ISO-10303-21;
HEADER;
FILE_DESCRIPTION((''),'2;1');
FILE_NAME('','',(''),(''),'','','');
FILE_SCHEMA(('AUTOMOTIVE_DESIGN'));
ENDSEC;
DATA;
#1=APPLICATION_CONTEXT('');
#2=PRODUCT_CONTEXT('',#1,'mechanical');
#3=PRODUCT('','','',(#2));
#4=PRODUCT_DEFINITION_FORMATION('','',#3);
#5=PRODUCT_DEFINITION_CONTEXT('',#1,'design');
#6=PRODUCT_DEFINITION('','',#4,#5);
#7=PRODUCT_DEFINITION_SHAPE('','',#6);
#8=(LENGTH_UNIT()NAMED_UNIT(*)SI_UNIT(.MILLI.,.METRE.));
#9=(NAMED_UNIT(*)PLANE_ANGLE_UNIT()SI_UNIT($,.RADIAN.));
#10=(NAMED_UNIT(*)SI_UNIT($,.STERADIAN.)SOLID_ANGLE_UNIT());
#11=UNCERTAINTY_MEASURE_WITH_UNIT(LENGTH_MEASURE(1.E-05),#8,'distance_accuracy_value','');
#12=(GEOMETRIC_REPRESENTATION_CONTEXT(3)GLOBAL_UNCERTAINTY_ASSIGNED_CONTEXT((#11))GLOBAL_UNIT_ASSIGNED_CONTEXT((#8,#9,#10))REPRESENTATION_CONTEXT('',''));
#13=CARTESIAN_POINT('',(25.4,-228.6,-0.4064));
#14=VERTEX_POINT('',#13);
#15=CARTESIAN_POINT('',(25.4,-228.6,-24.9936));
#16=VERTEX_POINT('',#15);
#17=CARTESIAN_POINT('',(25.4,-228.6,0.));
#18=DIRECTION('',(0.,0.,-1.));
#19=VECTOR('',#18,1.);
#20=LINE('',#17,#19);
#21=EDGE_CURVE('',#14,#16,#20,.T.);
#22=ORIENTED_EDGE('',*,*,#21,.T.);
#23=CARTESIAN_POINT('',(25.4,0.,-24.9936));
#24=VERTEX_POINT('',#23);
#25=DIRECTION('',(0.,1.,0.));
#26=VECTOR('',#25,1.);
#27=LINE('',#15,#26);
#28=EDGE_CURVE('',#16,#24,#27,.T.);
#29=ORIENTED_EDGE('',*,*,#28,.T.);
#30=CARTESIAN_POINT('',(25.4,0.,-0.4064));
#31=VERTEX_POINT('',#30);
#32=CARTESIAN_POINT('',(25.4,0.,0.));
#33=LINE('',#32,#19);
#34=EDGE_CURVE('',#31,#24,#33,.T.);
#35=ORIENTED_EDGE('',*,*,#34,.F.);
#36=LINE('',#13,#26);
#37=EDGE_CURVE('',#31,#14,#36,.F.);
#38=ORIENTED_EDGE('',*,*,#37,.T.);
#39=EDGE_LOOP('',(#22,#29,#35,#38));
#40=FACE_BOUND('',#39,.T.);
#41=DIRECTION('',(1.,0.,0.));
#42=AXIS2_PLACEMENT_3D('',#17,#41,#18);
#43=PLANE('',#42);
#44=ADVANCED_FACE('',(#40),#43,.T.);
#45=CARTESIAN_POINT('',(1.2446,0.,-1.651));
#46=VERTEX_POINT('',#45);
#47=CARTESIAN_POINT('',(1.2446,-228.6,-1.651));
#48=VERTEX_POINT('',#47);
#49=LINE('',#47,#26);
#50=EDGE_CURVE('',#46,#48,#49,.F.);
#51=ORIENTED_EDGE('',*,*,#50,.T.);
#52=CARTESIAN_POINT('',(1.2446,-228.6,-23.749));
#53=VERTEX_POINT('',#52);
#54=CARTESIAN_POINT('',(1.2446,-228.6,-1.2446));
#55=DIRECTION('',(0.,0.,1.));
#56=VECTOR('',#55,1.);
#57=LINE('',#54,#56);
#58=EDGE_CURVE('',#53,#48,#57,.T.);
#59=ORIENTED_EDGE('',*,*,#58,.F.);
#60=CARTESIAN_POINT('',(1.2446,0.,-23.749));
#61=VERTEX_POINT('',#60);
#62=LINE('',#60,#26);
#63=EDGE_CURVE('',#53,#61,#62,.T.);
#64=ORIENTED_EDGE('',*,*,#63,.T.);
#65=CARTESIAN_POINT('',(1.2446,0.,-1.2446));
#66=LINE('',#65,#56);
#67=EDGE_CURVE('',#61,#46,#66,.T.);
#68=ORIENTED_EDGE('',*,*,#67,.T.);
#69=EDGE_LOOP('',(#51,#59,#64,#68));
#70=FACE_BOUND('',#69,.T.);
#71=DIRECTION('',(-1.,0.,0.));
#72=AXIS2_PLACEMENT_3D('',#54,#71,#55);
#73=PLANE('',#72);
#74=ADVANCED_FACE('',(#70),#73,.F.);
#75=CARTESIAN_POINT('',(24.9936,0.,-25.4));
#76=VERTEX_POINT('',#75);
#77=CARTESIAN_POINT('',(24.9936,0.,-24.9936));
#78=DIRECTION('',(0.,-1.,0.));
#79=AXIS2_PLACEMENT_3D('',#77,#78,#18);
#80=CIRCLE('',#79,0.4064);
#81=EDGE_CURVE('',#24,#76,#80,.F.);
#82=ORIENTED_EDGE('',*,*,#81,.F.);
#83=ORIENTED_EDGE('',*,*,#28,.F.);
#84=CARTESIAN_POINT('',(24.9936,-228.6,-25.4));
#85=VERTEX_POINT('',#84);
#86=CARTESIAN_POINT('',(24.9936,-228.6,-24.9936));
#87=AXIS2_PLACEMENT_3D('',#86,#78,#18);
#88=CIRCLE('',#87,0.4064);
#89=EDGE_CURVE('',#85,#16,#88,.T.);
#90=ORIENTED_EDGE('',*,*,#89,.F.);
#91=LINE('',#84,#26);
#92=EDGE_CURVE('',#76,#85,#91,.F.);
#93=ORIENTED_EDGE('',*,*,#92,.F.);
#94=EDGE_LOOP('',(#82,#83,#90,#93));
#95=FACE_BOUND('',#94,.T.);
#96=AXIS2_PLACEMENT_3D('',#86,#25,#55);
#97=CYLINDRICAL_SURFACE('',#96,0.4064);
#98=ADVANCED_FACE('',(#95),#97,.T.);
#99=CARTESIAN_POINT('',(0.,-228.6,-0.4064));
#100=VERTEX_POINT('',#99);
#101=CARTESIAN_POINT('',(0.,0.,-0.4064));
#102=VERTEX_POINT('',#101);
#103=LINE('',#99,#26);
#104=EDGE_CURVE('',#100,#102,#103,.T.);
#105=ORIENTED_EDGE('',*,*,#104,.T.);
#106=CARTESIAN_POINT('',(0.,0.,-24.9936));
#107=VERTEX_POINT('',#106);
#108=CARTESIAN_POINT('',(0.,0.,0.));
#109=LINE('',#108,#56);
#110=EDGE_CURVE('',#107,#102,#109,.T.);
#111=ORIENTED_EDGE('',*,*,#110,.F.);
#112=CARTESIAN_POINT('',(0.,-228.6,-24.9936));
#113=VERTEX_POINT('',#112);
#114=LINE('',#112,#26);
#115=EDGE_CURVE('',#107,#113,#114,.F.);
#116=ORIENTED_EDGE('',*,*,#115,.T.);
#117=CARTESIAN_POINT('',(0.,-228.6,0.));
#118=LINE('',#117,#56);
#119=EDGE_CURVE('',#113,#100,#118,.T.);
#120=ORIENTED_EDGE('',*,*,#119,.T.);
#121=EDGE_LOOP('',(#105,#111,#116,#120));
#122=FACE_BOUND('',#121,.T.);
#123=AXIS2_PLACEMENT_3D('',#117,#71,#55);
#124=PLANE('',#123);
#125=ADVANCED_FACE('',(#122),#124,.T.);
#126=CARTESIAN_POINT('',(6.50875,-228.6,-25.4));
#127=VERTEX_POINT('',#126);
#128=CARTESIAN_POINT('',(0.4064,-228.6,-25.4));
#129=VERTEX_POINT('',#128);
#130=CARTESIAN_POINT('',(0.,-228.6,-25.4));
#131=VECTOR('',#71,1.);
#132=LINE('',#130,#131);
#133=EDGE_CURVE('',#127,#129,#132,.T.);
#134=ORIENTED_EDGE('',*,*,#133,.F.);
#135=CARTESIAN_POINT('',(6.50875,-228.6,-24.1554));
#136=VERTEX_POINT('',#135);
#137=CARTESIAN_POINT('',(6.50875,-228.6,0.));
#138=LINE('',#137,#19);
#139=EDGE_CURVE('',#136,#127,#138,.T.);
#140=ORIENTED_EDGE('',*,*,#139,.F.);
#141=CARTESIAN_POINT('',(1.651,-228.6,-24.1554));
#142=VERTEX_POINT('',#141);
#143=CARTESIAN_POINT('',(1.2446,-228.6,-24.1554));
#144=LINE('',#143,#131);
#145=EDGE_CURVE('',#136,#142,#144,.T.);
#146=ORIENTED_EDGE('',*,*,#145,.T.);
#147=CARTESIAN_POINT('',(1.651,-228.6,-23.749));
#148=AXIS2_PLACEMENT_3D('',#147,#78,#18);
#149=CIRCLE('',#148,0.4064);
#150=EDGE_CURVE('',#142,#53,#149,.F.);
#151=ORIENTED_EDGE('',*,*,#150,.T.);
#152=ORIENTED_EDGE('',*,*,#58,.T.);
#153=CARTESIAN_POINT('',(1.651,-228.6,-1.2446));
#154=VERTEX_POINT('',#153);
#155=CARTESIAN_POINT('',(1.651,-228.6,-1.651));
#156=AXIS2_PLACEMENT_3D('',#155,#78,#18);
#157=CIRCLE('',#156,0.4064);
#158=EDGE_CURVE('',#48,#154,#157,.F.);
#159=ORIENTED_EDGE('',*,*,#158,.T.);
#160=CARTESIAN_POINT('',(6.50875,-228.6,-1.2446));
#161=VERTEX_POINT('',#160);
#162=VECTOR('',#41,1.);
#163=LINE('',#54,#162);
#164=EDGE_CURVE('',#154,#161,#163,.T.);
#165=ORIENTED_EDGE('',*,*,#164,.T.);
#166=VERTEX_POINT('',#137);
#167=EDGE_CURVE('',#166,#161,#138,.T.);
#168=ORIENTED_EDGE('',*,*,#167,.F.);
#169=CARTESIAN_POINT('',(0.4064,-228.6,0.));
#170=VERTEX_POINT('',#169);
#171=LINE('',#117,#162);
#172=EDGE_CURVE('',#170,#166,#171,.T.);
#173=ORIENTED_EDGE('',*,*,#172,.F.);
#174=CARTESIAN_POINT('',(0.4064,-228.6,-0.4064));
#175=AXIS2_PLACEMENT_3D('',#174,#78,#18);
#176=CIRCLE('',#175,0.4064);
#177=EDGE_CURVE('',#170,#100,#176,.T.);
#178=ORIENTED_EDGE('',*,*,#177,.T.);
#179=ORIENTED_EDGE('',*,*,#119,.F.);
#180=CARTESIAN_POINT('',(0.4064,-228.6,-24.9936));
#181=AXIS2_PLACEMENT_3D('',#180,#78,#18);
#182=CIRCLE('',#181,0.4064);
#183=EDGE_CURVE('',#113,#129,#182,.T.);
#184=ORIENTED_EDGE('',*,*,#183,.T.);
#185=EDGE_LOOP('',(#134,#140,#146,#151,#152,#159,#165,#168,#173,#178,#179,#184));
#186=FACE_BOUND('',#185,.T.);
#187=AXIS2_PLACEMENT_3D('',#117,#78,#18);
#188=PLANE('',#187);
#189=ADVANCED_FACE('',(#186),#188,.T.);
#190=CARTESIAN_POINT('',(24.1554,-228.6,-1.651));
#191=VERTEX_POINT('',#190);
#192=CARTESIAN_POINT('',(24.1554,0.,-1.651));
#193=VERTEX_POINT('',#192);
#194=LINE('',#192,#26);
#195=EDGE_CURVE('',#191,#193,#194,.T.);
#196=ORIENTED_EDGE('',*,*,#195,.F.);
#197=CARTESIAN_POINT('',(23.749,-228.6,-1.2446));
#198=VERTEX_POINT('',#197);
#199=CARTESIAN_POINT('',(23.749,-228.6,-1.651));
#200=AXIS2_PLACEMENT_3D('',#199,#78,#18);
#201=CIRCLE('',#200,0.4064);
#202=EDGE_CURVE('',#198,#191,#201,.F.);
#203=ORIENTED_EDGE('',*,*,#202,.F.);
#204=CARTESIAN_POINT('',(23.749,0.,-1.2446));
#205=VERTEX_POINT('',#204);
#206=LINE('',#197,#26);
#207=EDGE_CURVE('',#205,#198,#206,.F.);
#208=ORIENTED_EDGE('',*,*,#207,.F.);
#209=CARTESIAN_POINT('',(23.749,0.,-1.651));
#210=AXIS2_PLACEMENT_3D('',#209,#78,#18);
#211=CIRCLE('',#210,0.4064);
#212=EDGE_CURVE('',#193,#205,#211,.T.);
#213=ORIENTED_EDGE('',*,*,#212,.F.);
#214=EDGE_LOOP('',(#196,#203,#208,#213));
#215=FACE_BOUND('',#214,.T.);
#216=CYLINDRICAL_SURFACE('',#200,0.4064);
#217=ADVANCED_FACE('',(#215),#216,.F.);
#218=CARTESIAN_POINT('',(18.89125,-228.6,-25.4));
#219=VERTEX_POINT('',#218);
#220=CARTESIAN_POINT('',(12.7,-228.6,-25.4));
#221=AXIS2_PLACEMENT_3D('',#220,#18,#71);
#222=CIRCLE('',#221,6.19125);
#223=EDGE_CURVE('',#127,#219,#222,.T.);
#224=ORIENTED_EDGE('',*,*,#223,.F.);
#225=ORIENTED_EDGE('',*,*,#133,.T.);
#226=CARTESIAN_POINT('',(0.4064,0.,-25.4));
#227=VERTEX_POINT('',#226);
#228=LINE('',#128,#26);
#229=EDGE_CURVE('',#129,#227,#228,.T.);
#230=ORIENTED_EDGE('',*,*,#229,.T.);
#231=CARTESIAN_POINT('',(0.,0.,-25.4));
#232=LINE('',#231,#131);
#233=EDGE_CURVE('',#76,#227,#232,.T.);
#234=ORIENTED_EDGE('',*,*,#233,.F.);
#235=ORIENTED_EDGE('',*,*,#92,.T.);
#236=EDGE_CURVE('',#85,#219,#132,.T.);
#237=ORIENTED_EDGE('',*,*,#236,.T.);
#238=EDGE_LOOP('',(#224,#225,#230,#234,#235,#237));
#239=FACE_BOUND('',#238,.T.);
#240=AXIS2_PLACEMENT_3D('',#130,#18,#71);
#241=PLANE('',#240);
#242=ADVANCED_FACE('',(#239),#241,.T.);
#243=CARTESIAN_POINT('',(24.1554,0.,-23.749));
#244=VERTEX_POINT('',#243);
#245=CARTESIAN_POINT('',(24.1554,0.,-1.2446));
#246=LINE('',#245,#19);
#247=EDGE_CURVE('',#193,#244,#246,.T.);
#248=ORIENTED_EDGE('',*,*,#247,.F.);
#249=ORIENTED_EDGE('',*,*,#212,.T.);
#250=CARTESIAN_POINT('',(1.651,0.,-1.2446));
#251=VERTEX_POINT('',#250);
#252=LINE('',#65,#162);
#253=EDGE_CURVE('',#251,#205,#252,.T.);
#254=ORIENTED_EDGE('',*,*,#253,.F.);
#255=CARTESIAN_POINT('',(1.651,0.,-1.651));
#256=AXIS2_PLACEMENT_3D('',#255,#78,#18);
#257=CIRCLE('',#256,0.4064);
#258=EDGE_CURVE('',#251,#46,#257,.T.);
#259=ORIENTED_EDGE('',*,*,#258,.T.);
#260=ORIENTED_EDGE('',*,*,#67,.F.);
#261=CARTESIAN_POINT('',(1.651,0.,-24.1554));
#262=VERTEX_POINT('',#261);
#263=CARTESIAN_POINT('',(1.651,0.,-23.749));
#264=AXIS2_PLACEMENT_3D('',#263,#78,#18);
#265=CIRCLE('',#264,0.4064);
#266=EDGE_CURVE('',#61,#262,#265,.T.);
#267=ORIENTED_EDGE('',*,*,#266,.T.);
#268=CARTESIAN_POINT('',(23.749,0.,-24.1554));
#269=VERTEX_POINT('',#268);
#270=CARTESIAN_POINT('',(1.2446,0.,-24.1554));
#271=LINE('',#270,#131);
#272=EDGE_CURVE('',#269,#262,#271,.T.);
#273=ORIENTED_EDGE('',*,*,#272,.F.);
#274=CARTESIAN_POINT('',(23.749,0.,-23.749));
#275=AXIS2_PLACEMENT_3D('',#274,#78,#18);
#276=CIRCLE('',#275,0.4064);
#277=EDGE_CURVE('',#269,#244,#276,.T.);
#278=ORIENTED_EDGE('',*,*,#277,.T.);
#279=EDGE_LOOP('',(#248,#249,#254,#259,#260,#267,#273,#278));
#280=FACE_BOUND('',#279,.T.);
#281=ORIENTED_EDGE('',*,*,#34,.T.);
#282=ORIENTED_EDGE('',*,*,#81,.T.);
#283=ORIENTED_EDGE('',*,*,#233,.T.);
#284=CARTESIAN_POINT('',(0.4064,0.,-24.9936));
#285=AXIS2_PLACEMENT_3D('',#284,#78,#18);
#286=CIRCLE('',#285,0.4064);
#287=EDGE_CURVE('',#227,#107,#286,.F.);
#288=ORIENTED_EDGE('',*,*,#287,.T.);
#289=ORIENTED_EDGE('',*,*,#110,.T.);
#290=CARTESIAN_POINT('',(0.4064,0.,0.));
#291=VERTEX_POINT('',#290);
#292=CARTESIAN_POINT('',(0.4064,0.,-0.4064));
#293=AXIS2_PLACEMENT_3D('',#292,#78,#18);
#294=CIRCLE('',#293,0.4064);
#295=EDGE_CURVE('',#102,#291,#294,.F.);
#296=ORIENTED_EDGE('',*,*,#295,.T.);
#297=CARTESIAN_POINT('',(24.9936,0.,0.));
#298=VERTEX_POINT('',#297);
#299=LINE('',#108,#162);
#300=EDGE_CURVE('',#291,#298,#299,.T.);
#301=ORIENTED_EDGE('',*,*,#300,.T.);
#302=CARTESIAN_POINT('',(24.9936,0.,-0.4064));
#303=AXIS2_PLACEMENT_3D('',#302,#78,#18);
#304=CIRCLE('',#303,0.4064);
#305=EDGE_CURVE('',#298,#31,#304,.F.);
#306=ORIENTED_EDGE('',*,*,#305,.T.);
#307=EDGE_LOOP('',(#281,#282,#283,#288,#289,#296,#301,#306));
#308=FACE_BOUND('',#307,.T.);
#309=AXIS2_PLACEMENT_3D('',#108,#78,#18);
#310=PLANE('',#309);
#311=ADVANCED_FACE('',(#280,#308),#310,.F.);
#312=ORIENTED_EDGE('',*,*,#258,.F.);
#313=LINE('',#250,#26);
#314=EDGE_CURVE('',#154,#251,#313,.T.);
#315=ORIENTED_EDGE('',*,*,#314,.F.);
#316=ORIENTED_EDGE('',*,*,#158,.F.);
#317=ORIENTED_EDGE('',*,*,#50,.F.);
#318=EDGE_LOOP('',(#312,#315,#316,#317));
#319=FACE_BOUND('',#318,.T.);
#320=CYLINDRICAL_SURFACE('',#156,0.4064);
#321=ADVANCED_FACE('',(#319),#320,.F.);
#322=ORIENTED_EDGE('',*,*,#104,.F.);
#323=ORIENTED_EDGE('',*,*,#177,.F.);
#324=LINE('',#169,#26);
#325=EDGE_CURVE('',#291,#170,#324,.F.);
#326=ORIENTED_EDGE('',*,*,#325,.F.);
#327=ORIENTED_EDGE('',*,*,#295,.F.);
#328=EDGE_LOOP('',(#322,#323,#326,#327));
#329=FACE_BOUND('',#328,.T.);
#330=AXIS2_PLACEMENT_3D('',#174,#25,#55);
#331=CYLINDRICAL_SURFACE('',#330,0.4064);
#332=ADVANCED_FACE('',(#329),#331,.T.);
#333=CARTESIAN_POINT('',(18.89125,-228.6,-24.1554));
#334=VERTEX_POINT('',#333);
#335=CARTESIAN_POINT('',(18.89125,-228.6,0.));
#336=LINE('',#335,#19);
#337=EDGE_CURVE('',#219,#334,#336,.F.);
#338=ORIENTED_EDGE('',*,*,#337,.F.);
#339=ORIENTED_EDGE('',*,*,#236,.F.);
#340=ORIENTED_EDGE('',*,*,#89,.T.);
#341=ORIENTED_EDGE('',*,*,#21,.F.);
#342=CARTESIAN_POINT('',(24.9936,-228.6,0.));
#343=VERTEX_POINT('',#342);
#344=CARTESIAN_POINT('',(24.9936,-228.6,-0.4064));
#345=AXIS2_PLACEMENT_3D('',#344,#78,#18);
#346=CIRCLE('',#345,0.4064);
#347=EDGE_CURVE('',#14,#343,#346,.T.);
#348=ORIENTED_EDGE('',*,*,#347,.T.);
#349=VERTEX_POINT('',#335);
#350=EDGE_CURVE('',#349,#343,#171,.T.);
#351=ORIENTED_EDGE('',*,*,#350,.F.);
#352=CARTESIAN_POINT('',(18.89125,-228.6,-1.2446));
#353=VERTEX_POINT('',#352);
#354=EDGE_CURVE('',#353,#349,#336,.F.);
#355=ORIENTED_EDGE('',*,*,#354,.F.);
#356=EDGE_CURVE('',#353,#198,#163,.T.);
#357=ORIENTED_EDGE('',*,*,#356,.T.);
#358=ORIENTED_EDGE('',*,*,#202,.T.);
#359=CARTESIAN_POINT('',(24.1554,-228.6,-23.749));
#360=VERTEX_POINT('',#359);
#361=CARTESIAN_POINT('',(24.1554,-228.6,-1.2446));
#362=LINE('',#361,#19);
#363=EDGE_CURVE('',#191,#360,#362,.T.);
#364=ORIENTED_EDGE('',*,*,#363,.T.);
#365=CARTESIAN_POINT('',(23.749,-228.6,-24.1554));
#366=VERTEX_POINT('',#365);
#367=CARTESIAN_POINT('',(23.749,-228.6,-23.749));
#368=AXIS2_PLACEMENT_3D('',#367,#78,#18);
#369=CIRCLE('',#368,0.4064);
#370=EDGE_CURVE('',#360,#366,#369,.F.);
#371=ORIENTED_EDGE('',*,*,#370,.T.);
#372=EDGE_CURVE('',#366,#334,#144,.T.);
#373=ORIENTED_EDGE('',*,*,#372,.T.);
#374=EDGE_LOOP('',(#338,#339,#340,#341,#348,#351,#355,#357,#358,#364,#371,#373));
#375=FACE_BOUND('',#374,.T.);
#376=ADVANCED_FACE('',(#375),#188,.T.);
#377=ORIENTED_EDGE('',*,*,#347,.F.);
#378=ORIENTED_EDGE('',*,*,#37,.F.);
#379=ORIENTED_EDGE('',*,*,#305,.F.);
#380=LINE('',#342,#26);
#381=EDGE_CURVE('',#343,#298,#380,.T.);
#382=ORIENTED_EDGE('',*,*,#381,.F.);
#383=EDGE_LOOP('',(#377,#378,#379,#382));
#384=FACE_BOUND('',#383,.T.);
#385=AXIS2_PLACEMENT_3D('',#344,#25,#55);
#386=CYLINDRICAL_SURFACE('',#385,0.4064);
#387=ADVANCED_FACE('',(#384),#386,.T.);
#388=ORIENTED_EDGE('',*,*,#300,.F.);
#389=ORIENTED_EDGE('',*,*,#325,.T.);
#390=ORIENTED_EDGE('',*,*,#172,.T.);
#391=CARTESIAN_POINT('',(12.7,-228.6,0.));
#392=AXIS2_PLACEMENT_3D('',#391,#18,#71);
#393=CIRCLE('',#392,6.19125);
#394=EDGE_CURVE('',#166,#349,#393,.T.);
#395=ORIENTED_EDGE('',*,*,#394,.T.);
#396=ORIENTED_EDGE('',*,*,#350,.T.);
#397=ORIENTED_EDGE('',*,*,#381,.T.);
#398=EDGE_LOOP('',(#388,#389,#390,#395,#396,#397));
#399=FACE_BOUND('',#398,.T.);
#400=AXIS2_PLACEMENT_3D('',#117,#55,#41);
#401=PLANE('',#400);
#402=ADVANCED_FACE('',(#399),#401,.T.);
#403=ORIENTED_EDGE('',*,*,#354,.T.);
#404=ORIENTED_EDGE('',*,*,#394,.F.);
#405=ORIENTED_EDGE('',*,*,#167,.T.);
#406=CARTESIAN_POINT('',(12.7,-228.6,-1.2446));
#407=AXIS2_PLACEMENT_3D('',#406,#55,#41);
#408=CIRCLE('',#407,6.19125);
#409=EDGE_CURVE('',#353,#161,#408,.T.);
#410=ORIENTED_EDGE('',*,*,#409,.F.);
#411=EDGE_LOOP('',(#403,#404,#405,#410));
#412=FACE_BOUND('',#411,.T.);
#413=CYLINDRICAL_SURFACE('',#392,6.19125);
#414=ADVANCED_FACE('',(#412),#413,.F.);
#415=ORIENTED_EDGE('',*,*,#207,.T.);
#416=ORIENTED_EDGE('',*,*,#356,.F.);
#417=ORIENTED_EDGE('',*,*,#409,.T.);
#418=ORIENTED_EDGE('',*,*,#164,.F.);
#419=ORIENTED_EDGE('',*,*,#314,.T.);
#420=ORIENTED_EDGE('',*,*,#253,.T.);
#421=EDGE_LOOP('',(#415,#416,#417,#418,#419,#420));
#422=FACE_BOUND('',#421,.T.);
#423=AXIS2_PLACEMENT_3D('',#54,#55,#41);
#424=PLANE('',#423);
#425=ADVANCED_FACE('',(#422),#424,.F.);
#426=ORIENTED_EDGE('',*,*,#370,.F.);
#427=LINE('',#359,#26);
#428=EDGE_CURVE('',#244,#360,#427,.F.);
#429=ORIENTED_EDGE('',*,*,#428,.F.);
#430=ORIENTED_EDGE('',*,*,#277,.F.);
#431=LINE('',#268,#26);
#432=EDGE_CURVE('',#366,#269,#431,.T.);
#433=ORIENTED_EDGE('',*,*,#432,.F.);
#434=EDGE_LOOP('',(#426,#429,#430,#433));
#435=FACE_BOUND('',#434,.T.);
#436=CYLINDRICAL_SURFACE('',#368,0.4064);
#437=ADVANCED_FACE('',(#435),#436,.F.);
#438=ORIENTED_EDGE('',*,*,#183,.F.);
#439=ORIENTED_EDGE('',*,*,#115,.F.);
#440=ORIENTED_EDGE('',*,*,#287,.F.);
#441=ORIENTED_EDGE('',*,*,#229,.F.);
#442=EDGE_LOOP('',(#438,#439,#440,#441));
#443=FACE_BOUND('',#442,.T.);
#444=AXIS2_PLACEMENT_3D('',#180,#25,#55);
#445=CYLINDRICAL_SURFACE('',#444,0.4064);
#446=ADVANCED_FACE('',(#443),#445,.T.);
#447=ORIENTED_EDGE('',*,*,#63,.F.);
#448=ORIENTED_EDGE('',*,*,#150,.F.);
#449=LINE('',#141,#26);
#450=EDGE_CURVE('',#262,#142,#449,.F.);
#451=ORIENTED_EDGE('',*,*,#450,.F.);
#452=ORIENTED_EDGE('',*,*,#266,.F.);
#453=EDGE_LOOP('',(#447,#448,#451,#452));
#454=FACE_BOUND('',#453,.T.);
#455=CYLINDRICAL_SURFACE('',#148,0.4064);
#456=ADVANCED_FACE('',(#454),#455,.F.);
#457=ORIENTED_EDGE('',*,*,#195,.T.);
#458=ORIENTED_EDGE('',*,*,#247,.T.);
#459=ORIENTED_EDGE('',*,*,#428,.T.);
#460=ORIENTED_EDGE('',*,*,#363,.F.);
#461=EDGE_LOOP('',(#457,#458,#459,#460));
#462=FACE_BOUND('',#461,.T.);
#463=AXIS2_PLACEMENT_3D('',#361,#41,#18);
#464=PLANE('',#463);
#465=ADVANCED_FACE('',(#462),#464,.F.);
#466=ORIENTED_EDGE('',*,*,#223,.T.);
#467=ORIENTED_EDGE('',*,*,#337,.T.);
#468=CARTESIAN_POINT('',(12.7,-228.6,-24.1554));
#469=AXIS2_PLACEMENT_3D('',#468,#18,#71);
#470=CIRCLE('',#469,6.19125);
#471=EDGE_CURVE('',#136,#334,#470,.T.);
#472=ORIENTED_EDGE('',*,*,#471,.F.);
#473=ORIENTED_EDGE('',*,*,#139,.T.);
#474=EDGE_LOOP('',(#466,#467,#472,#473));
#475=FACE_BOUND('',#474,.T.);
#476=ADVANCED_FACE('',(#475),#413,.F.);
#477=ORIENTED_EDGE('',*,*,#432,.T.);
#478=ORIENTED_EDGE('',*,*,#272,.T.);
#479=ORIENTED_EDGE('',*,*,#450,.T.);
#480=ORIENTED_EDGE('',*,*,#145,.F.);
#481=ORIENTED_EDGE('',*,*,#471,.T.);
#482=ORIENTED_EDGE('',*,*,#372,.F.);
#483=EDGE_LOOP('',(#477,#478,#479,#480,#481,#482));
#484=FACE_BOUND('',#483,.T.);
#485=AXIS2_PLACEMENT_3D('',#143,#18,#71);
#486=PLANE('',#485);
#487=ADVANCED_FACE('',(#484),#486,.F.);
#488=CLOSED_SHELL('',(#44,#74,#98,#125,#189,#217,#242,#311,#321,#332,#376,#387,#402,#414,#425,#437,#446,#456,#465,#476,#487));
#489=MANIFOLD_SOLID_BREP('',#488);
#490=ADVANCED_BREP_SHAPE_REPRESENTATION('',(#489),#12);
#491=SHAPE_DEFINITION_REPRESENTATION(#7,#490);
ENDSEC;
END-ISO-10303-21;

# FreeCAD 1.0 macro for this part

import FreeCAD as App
import Part
import Sketcher
Q = App.Units.Quantity


def edges_at(feature, points):
    """Names of the edges that pass closest to the given points."""
    edges = feature.Shape.Edges
    near = lambda p: min(range(len(edges)), key=lambda i: edges[i].distToShape(Part.Vertex(*p))[0])
    return sorted({f"Edge{near(p) + 1}" for p in points})

doc = App.newDocument("Part")
body = doc.addObject("PartDesign::Body", "Body")

sketch1 = body.newObject("Sketcher::SketchObject", "Sketch")
sketch1.AttachmentSupport = (doc.getObject("XZ_Plane"), [""])
sketch1.MapMode = "FlatFace"
sketch1.addGeometry([
    Part.LineSegment(App.Vector(0, -25, 0), App.Vector(0, 0, 0)),
    Part.LineSegment(App.Vector(0, 0, 0), App.Vector(25, 0, 0)),
    Part.LineSegment(App.Vector(25, 0, 0), App.Vector(25, -25, 0)),
    Part.LineSegment(App.Vector(25, -25, 0), App.Vector(0, -25, 0)),
    Part.LineSegment(App.Vector(24, -1, 0), App.Vector(1, -1, 0)),
    Part.LineSegment(App.Vector(1, -1, 0), App.Vector(1, -24, 0)),
    Part.LineSegment(App.Vector(1, -24, 0), App.Vector(24, -24, 0)),
    Part.LineSegment(App.Vector(24, -24, 0), App.Vector(24, -1, 0)),
], False)
sketch1.addConstraint([
    Sketcher.Constraint("Coincident", 0, 2, 1, 1),
    Sketcher.Constraint("Coincident", 1, 2, 2, 1),
    Sketcher.Constraint("Coincident", 2, 2, 3, 1),
    Sketcher.Constraint("Coincident", 3, 2, 0, 1),
    Sketcher.Constraint("Coincident", 4, 2, 5, 1),
    Sketcher.Constraint("Coincident", 5, 2, 6, 1),
    Sketcher.Constraint("Coincident", 6, 2, 7, 1),
    Sketcher.Constraint("Coincident", 7, 2, 4, 1),
    Sketcher.Constraint("Vertical", 0),
    Sketcher.Constraint("Horizontal", 1),
    Sketcher.Constraint("Vertical", 2),
    Sketcher.Constraint("Horizontal", 3),
    Sketcher.Constraint("Horizontal", 4),
    Sketcher.Constraint("Vertical", 5),
    Sketcher.Constraint("Horizontal", 6),
    Sketcher.Constraint("Vertical", 7),
    Sketcher.Constraint("Coincident", 0, 2, -1, 1),
    Sketcher.Constraint("Equal", 3, 0),
    Sketcher.Constraint("Equal", 6, 5),
    Sketcher.Constraint("DistanceX", 1, 1, 1, 2, Q("1 in")),
    Sketcher.Constraint("DistanceX", 4, 2, 4, 1, Q("0.902 in")),
    Sketcher.Constraint("DistanceX", -1, 1, 4, 2, Q("0.049 in")),
    Sketcher.Constraint("DistanceY", 4, 2, -1, 1, Q("0.049 in")),
])
pad1 = body.newObject("PartDesign::Pad", "Pad")
pad1.Profile = sketch1
pad1.Length = Q("9 in")
doc.recompute()

fillet = body.newObject("PartDesign::Fillet", "Fillet")
fillet.Base = (pad1, edges_at(pad1, [
    (1.245, -114.3, -1.245),
    (1.245, -114.3, -24.155),
    (24.155, -114.3, -24.155),
    (24.155, -114.3, -1.245),
    (0, -114.3, -25.4),
    (25.4, -114.3, -25.4),
    (25.4, -114.3, 0),
    (0, -114.3, 0),
]))
fillet.Radius = Q("0.016 in")

sketch2 = body.newObject("Sketcher::SketchObject", "Sketch001")
sketch2.AttachmentSupport = (doc.getObject("XY_Plane"), [""])
sketch2.MapMode = "FlatFace"
sketch2.AttachmentOffset = App.Placement(App.Vector(0, 0, -1 * 25.4), App.Rotation())
sketch2.addGeometry(Part.Circle(App.Vector(13, -229, 0), App.Vector(0, 0, 1), 6), False)
sketch2.addConstraint([
    Sketcher.Constraint("DistanceY", 0, 3, -1, 1, Q("9 in")),
    Sketcher.Constraint("Diameter", 0, Q("0.4875 in")),
    Sketcher.Constraint("DistanceX", -1, 1, 0, 3, Q("0.5 in")),
])
pocket1 = body.newObject("PartDesign::Pocket", "Pocket")
pocket1.Profile = sketch2
pocket1.Type = "ThroughAll"
pocket1.Reversed = True

doc.recompute()
